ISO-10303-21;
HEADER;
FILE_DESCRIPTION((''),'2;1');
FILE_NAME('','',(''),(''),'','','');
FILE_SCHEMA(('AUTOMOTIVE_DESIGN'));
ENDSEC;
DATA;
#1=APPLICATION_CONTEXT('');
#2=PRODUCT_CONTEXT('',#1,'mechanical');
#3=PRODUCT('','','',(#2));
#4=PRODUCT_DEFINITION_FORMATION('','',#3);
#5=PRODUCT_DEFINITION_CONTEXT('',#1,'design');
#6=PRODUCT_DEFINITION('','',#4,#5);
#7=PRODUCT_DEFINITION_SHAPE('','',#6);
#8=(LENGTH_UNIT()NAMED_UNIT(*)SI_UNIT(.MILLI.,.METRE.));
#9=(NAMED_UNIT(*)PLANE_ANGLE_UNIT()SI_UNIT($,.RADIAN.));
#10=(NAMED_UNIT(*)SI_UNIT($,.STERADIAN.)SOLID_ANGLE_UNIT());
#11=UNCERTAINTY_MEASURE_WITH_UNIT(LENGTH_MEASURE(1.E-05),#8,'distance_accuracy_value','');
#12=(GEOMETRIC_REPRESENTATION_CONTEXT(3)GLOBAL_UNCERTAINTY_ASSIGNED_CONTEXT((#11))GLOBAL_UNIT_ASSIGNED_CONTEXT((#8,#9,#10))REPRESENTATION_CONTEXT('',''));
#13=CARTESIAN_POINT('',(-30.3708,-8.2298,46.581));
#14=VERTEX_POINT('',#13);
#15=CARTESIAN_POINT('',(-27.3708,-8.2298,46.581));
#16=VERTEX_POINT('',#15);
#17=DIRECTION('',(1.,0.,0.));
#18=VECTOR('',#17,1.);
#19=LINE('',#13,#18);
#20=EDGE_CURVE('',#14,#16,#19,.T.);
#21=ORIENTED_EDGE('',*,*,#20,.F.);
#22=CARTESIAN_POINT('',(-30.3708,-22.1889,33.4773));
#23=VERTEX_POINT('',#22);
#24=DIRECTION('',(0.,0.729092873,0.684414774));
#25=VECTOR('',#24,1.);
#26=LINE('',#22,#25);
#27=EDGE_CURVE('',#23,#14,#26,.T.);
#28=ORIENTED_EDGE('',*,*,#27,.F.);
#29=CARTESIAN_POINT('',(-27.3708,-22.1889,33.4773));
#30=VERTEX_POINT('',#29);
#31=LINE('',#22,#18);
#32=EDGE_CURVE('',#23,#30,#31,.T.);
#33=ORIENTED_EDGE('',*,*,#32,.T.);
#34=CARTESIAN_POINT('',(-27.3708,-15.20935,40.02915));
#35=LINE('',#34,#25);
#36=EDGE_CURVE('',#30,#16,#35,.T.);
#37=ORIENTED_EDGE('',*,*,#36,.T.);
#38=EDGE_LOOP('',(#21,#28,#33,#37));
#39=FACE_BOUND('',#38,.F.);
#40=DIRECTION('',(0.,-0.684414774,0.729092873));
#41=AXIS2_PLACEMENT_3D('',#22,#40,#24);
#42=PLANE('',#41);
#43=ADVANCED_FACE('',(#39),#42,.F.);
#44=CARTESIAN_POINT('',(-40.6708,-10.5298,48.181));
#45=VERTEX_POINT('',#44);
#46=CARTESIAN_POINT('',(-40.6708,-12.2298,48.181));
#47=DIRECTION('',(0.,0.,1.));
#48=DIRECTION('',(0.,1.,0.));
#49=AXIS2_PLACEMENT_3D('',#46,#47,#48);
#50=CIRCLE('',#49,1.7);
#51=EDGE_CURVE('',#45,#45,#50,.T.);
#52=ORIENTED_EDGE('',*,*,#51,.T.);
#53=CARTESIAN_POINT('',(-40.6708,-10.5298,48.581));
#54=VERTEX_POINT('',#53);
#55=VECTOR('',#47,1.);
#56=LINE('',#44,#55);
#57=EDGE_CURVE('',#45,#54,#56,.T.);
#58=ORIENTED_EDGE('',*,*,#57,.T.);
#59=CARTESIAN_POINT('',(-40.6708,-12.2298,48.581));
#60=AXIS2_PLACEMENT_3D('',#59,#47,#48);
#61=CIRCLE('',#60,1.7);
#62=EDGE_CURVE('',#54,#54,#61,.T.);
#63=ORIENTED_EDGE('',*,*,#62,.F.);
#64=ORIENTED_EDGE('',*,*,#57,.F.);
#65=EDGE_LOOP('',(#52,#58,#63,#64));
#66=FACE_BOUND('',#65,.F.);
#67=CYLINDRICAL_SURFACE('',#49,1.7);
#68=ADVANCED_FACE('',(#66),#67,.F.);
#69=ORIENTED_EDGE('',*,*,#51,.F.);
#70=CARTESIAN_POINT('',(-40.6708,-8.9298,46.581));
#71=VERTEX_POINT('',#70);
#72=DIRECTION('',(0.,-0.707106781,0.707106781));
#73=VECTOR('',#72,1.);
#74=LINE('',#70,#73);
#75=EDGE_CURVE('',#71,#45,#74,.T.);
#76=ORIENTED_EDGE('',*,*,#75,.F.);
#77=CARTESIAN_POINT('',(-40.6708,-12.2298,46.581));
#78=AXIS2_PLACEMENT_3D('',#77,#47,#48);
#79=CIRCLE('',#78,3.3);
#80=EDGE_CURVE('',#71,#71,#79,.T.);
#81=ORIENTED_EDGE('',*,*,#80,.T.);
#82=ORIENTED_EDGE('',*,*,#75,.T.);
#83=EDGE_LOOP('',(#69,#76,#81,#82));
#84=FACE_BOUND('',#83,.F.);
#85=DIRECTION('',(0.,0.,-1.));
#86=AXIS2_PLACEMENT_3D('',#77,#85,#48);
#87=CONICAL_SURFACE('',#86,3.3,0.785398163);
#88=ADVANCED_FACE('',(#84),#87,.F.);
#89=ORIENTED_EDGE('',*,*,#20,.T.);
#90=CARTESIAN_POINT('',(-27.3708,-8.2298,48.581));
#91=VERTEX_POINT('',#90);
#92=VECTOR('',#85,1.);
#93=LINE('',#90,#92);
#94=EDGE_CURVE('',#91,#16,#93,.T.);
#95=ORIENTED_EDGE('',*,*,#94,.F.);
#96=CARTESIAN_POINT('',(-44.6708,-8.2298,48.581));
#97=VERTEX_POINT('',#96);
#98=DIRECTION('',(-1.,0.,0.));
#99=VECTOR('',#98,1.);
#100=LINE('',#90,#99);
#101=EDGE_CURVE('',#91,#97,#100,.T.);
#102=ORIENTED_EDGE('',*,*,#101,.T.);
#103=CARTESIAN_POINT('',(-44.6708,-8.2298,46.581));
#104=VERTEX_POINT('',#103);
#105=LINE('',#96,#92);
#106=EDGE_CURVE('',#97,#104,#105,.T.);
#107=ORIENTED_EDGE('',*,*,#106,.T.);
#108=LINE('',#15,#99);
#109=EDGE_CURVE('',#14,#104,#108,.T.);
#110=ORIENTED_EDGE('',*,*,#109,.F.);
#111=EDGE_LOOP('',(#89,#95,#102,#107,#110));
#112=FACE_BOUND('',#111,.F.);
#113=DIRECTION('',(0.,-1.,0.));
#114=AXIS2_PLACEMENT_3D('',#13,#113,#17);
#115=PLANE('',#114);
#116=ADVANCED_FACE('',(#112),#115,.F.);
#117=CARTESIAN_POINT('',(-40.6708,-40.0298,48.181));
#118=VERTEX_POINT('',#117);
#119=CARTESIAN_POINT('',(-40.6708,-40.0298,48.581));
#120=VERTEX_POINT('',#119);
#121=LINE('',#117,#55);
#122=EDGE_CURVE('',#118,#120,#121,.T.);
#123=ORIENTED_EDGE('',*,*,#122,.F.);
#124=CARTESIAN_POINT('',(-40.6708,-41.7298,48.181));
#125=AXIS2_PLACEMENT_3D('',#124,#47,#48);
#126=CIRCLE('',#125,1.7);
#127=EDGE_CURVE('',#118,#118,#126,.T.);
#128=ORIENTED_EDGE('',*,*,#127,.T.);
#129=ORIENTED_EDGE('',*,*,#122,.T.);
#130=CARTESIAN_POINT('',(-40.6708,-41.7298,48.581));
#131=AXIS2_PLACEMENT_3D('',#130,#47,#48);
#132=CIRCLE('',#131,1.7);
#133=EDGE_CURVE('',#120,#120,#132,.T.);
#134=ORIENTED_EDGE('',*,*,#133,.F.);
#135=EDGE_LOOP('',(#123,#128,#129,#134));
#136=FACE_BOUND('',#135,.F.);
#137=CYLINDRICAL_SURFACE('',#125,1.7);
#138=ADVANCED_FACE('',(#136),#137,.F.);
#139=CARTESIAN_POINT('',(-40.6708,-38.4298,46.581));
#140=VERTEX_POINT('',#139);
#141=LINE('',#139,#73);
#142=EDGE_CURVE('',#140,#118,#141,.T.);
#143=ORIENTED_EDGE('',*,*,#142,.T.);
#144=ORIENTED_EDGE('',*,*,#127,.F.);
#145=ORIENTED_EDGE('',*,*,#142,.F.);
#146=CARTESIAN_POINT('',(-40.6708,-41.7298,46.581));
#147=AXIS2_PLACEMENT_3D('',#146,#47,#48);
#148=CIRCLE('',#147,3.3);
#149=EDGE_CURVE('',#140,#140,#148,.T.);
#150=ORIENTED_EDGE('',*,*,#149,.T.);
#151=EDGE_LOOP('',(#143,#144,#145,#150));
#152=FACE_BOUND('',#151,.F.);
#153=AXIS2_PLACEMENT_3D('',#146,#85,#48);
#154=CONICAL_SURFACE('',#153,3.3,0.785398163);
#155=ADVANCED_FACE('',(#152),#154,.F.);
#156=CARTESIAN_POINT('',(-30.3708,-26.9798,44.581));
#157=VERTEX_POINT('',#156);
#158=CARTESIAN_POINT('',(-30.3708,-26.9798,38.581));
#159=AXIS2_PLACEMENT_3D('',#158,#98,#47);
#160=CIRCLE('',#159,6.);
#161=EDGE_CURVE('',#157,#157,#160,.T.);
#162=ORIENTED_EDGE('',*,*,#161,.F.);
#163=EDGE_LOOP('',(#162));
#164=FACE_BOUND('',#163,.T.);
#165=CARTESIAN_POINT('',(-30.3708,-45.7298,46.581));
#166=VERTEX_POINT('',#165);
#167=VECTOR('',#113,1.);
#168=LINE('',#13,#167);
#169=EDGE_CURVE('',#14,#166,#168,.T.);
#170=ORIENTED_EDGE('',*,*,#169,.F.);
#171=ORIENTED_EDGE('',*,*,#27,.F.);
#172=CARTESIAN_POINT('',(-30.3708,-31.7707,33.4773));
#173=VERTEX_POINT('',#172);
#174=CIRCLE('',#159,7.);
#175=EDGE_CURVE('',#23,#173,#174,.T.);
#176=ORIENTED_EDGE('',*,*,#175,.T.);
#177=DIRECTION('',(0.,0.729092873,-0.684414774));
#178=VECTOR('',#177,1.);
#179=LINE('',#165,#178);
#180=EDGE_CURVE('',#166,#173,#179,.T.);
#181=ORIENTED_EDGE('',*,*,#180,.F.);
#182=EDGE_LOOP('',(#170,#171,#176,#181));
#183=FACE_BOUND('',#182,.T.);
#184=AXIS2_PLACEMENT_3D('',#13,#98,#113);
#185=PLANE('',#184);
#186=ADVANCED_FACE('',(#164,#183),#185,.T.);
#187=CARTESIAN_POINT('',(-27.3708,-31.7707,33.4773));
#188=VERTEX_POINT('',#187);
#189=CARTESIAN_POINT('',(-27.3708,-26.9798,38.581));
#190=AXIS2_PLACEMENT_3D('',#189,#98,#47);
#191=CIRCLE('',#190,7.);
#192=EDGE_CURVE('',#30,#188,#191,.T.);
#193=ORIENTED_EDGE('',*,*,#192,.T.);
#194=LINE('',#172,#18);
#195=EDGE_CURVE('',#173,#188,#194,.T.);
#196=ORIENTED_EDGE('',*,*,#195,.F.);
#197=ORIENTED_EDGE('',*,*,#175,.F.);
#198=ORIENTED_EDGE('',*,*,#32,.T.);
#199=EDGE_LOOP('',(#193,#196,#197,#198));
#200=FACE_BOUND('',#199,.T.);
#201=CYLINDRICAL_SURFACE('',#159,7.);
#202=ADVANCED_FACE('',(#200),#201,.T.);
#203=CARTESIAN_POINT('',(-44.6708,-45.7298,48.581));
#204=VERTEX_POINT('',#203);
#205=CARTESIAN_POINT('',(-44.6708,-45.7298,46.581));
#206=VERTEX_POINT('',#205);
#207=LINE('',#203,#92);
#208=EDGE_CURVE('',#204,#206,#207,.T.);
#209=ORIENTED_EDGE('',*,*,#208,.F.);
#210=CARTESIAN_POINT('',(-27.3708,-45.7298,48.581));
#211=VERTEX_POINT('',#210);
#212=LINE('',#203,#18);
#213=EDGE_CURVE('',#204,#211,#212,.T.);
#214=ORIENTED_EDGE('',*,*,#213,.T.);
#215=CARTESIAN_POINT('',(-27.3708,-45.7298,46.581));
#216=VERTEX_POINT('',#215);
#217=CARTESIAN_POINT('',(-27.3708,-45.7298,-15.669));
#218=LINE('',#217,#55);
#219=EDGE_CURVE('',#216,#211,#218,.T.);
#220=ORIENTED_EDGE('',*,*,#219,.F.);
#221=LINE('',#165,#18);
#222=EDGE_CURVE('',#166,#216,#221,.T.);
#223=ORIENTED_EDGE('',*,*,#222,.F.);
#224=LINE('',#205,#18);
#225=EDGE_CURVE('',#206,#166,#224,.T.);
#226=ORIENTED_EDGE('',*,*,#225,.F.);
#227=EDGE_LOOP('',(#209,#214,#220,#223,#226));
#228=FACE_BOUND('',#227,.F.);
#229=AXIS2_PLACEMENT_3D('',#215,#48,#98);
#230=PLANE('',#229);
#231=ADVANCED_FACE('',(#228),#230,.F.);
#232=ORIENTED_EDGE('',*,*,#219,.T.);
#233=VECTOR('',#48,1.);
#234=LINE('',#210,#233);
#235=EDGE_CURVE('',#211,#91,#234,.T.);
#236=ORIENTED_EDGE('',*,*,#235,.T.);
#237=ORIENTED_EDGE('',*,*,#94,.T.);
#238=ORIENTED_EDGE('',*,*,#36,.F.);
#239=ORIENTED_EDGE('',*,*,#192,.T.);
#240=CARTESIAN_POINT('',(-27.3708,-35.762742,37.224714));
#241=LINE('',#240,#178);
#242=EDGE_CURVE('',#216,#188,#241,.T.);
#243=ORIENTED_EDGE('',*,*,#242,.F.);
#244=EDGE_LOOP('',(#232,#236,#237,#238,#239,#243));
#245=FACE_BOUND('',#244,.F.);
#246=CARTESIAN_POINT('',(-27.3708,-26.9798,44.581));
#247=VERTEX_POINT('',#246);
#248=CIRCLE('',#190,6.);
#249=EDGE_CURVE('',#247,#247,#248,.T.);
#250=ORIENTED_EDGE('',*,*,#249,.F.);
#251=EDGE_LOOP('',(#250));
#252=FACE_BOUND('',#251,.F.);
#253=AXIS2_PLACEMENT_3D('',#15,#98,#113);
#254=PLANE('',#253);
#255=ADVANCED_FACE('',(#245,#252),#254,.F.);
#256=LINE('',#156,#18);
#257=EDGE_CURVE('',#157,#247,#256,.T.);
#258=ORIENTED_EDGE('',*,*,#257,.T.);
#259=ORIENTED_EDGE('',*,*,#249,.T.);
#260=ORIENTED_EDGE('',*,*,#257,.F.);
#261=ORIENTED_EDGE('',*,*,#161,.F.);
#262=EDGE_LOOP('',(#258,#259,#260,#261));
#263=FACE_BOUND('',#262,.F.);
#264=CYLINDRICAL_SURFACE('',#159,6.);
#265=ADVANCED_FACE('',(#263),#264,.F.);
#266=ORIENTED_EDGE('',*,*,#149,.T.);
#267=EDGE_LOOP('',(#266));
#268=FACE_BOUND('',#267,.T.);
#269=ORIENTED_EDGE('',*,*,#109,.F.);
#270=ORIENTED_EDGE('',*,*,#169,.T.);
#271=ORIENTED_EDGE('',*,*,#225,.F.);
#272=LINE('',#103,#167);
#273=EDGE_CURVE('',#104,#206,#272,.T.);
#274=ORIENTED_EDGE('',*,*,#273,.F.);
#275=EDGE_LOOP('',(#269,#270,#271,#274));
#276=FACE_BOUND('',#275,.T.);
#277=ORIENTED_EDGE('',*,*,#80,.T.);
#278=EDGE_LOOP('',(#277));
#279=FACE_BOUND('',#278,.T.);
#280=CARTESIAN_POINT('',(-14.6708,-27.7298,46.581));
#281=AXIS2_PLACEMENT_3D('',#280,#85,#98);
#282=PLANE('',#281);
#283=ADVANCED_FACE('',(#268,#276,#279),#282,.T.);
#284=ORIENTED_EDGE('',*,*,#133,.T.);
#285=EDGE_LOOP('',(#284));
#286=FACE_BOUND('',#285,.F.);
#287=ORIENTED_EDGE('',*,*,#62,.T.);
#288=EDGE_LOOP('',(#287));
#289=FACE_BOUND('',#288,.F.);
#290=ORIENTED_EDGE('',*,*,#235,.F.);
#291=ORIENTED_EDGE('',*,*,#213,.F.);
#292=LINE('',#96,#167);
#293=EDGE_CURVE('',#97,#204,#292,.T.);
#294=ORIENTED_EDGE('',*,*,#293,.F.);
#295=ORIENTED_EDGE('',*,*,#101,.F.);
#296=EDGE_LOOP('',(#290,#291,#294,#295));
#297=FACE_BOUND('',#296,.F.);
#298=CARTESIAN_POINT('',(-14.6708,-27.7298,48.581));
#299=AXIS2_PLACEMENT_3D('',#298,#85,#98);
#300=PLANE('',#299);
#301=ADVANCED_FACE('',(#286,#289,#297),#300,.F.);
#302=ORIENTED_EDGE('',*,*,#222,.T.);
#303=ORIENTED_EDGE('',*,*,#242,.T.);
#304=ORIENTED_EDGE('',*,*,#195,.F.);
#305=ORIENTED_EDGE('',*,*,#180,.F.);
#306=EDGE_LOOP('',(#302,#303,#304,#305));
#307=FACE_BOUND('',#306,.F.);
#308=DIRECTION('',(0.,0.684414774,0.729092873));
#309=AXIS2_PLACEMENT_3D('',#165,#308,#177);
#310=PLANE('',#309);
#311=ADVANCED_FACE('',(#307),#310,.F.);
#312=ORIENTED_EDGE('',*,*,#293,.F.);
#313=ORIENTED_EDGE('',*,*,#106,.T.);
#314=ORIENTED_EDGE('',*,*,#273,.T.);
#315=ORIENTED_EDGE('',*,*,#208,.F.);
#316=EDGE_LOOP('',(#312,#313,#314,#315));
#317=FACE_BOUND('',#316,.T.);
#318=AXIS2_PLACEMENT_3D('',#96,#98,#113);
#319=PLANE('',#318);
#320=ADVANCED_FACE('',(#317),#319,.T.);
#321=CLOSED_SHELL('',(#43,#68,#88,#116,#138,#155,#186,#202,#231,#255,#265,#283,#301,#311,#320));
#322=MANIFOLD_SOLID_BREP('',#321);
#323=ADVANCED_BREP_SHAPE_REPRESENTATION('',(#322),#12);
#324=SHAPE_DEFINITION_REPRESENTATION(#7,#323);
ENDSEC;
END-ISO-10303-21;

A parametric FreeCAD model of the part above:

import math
import FreeCAD as App
import Part
import Sketcher

V = App.Vector
Q = App.Units.Quantity

doc = App.newDocument("Part")
params = doc.addObject("Spreadsheet::Sheet", "Params")
for row, (alias, value) in enumerate([
    ("sketch1_width", "17.3 mm"),
    ("sketch1_height", "37.5 mm"),
    ("pad1_length", "2 mm"),
    ("sketch2_diameter", "3.4 mm"),
    ("hole_diameter", "3.4 mm"),
    ("hole_csink_diameter", "6.6 mm"),
    ("sketch3_width", "3 mm"),
    ("sketch3_height", "37.5 mm"),
    ("pad2_length", "62.25 mm"),
    ("sketch4_diameter", "12 mm"),
    ("sketch4_radius", "7 mm"),
    ("sketch4_width", "37.5 mm"),
    ("sketch4_height", "62.25 mm"),
], start=1):
    params.set(f"A{row}", alias)
    params.set(f"B{row}", "=" + value)
    params.setAlias(f"B{row}", alias)

body = doc.addObject("PartDesign::Body", "Body")

# Sketch on XY plane
sketch1 = body.newObject("Sketcher::SketchObject", "Sketch")
sketch1.AttachmentSupport = (doc.getObject("XY_Plane"), [""])
sketch1.MapMode = "FlatFace"
sketch1.AttachmentOffset = App.Placement(V(0, 0, 48.581), App.Rotation())
sketch1.addGeometry(Part.LineSegment(V(-44.6708, -8.2298, 0), V(-27.3708, -8.2298, 0)), False)
sketch1.addGeometry(Part.LineSegment(V(-27.3708, -8.2298, 0), V(-27.3708, -45.7298, 0)), False)
sketch1.addGeometry(Part.LineSegment(V(-27.3708, -45.7298, 0), V(-44.6708, -45.7298, 0)), False)
sketch1.addGeometry(Part.LineSegment(V(-44.6708, -45.7298, 0), V(-44.6708, -8.2298, 0)), False)
sketch1.addConstraint(Sketcher.Constraint("Coincident", 0, 2, 1, 1))
sketch1.addConstraint(Sketcher.Constraint("Coincident", 1, 2, 2, 1))
sketch1.addConstraint(Sketcher.Constraint("Coincident", 2, 2, 3, 1))
sketch1.addConstraint(Sketcher.Constraint("Coincident", 3, 2, 0, 1))
sketch1.addConstraint(Sketcher.Constraint("Horizontal", 0))
sketch1.addConstraint(Sketcher.Constraint("Vertical", 1))
sketch1.addConstraint(Sketcher.Constraint("Horizontal", 2))
sketch1.addConstraint(Sketcher.Constraint("Vertical", 3))
sketch1.addConstraint(Sketcher.Constraint("DistanceX", 0, 1, 0, 2, Q("17.3 mm")))
sketch1.addConstraint(Sketcher.Constraint("DistanceY", 1, 2, 1, 1, Q("37.5 mm")))
sketch1.addConstraint(Sketcher.Constraint("DistanceX", 0, 2, -1, 1, Q("27.3708 mm")))
sketch1.addConstraint(Sketcher.Constraint("DistanceY", 0, 2, -1, 1, Q("8.2298 mm")))
sketch1.setExpression("Constraints[8]", "Params.sketch1_width")
sketch1.setExpression("Constraints[9]", "Params.sketch1_height")
pad1 = body.newObject("PartDesign::Pad", "Pad")
pad1.Profile = sketch1
pad1.setExpression("Length", "Params.pad1_length")
pad1.Reversed = True

# Sketch on XY plane
sketch2 = body.newObject("Sketcher::SketchObject", "Sketch001")
sketch2.AttachmentSupport = (doc.getObject("XY_Plane"), [""])
sketch2.MapMode = "FlatFace"
sketch2.AttachmentOffset = App.Placement(V(0, 0, 46.581), App.Rotation())
sketch2.addGeometry(Part.Circle(V(-40.6708, -12.2298, 0), V(0, 0, 1), 1.7), False)
sketch2.addGeometry(Part.Circle(V(-40.6708, -41.7298, 0), V(0, 0, 1), 1.7), False)
sketch2.addConstraint(Sketcher.Constraint("Equal", 0, 1))
sketch2.addConstraint(Sketcher.Constraint("Vertical", 0, 3, 1, 3))
sketch2.addConstraint(Sketcher.Constraint("Diameter", 0, Q("3.4 mm")))
sketch2.addConstraint(Sketcher.Constraint("DistanceY", 1, 3, 0, 3, Q("29.5 mm")))
sketch2.addConstraint(Sketcher.Constraint("DistanceX", 0, 3, -1, 1, Q("40.6708 mm")))
sketch2.addConstraint(Sketcher.Constraint("DistanceY", 0, 3, -1, 1, Q("12.2298 mm")))
sketch2.setExpression("Constraints[2]", "Params.sketch2_diameter")
doc.recompute()
hole = body.newObject("PartDesign::Hole", "Hole")
hole.Profile = sketch2
hole.ThreadType = "None"
hole.setExpression("Diameter", "Params.hole_diameter")
hole.DepthType = "ThroughAll"
hole.HoleCutType = "Countersink"
hole.setExpression("HoleCutDiameter", "Params.hole_csink_diameter")
hole.HoleCutCountersinkAngle = 90
hole.Reversed = True

# Sketch on XY plane
sketch3 = body.newObject("Sketcher::SketchObject", "Sketch002")
sketch3.AttachmentSupport = (doc.getObject("XY_Plane"), [""])
sketch3.MapMode = "FlatFace"
sketch3.AttachmentOffset = App.Placement(V(0, 0, 46.581), App.Rotation())
sketch3.addGeometry(Part.LineSegment(V(-30.3708, -45.7298, 0), V(-30.3708, -8.2298, 0)), False)
sketch3.addGeometry(Part.LineSegment(V(-30.3708, -8.2298, 0), V(-27.3708, -8.2298, 0)), False)
sketch3.addGeometry(Part.LineSegment(V(-27.3708, -8.2298, 0), V(-27.3708, -45.7298, 0)), False)
sketch3.addGeometry(Part.LineSegment(V(-27.3708, -45.7298, 0), V(-30.3708, -45.7298, 0)), False)
sketch3.addConstraint(Sketcher.Constraint("Coincident", 0, 2, 1, 1))
sketch3.addConstraint(Sketcher.Constraint("Coincident", 1, 2, 2, 1))
sketch3.addConstraint(Sketcher.Constraint("Coincident", 2, 2, 3, 1))
sketch3.addConstraint(Sketcher.Constraint("Coincident", 3, 2, 0, 1))
sketch3.addConstraint(Sketcher.Constraint("Vertical", 0))
sketch3.addConstraint(Sketcher.Constraint("Horizontal", 1))
sketch3.addConstraint(Sketcher.Constraint("Vertical", 2))
sketch3.addConstraint(Sketcher.Constraint("Horizontal", 3))
sketch3.addConstraint(Sketcher.Constraint("DistanceX", 1, 1, 1, 2, Q("3 mm")))
sketch3.addConstraint(Sketcher.Constraint("DistanceY", 0, 1, 0, 2, Q("37.5 mm")))
sketch3.addConstraint(Sketcher.Constraint("DistanceX", 0, 2, -1, 1, Q("30.3708 mm")))
sketch3.addConstraint(Sketcher.Constraint("DistanceY", 0, 2, -1, 1, Q("8.2298 mm")))
sketch3.setExpression("Constraints[8]", "Params.sketch3_width")
sketch3.setExpression("Constraints[9]", "Params.sketch3_height")
pad2 = body.newObject("PartDesign::Pad", "Pad001")
pad2.Profile = sketch3
pad2.setExpression("Length", "Params.pad2_length")
pad2.Reversed = True

# Sketch on YZ plane
sketch4 = body.newObject("Sketcher::SketchObject", "Sketch003")
sketch4.AttachmentSupport = (doc.getObject("YZ_Plane"), [""])
sketch4.MapMode = "FlatFace"
sketch4.AttachmentOffset = App.Placement(V(0, 0, -30.3708), App.Rotation())
sketch4.addGeometry(Part.LineSegment(V(-45.7298, -15.669, 0), V(-45.7298, 46.581, 0)), False)
sketch4.addGeometry(Part.LineSegment(V(-45.7298, 46.581, 0), V(-31.7707, 33.4773, 0)), False)
sketch4.addGeometry(Part.ArcOfCircle(Part.Circle(V(-26.9798, 38.581, 0), V(0, 0, 1), 7), math.radians(-133.1893), math.radians(-46.8107)), False)
sketch4.addGeometry(Part.LineSegment(V(-22.1889, 33.4773, 0), V(-8.2298, 46.581, 0)), False)
sketch4.addGeometry(Part.LineSegment(V(-8.2298, 46.581, 0), V(-8.2298, -15.669, 0)), False)
sketch4.addGeometry(Part.LineSegment(V(-8.2298, -15.669, 0), V(-45.7298, -15.669, 0)), False)
sketch4.addGeometry(Part.Circle(V(-26.9798, 38.581, 0), V(0, 0, 1), 6), False)
sketch4.addConstraint(Sketcher.Constraint("Coincident", 0, 2, 1, 1))
sketch4.addConstraint(Sketcher.Constraint("Tangent", 1, 2, 2, 1))
sketch4.addConstraint(Sketcher.Constraint("Tangent", 2, 2, 3, 1))
sketch4.addConstraint(Sketcher.Constraint("Coincident", 3, 2, 4, 1))
sketch4.addConstraint(Sketcher.Constraint("Coincident", 4, 2, 5, 1))
sketch4.addConstraint(Sketcher.Constraint("Coincident", 5, 2, 0, 1))
sketch4.addConstraint(Sketcher.Constraint("Vertical", 0))
sketch4.addConstraint(Sketcher.Constraint("Vertical", 4))
sketch4.addConstraint(Sketcher.Constraint("Horizontal", 5))
sketch4.addConstraint(Sketcher.Constraint("Coincident", 6, 3, 2, 3))
sketch4.addConstraint(Sketcher.Constraint("Horizontal", 1, 2, 2, 2))
sketch4.addConstraint(Sketcher.Constraint("Horizontal", 0, 2, 3, 2))
sketch4.addConstraint(Sketcher.Constraint("Diameter", 6, Q("12 mm")))
sketch4.addConstraint(Sketcher.Constraint("Radius", 2, Q("7 mm")))
sketch4.addConstraint(Sketcher.Constraint("DistanceY", 2, 3, 0, 2, Q("8 mm")))
sketch4.addConstraint(Sketcher.Constraint("DistanceX", 5, 2, 5, 1, Q("37.5 mm")))
sketch4.addConstraint(Sketcher.Constraint("DistanceY", 0, 1, 0, 2, Q("62.25 mm")))
sketch4.addConstraint(Sketcher.Constraint("DistanceY", -1, 1, 2, 3, Q("38.581 mm")))
sketch4.addConstraint(Sketcher.Constraint("DistanceX", 2, 2, -1, 1, Q("22.189 mm")))
sketch4.setExpression("Constraints[12]", "Params.sketch4_diameter")
sketch4.setExpression("Constraints[13]", "Params.sketch4_radius")
sketch4.setExpression("Constraints[15]", "Params.sketch4_width")
sketch4.setExpression("Constraints[16]", "Params.sketch4_height")
pocket1 = body.newObject("PartDesign::Pocket", "Pocket")
pocket1.Profile = sketch4
pocket1.Type = "ThroughAll"
pocket1.Reversed = True

doc.recompute()
